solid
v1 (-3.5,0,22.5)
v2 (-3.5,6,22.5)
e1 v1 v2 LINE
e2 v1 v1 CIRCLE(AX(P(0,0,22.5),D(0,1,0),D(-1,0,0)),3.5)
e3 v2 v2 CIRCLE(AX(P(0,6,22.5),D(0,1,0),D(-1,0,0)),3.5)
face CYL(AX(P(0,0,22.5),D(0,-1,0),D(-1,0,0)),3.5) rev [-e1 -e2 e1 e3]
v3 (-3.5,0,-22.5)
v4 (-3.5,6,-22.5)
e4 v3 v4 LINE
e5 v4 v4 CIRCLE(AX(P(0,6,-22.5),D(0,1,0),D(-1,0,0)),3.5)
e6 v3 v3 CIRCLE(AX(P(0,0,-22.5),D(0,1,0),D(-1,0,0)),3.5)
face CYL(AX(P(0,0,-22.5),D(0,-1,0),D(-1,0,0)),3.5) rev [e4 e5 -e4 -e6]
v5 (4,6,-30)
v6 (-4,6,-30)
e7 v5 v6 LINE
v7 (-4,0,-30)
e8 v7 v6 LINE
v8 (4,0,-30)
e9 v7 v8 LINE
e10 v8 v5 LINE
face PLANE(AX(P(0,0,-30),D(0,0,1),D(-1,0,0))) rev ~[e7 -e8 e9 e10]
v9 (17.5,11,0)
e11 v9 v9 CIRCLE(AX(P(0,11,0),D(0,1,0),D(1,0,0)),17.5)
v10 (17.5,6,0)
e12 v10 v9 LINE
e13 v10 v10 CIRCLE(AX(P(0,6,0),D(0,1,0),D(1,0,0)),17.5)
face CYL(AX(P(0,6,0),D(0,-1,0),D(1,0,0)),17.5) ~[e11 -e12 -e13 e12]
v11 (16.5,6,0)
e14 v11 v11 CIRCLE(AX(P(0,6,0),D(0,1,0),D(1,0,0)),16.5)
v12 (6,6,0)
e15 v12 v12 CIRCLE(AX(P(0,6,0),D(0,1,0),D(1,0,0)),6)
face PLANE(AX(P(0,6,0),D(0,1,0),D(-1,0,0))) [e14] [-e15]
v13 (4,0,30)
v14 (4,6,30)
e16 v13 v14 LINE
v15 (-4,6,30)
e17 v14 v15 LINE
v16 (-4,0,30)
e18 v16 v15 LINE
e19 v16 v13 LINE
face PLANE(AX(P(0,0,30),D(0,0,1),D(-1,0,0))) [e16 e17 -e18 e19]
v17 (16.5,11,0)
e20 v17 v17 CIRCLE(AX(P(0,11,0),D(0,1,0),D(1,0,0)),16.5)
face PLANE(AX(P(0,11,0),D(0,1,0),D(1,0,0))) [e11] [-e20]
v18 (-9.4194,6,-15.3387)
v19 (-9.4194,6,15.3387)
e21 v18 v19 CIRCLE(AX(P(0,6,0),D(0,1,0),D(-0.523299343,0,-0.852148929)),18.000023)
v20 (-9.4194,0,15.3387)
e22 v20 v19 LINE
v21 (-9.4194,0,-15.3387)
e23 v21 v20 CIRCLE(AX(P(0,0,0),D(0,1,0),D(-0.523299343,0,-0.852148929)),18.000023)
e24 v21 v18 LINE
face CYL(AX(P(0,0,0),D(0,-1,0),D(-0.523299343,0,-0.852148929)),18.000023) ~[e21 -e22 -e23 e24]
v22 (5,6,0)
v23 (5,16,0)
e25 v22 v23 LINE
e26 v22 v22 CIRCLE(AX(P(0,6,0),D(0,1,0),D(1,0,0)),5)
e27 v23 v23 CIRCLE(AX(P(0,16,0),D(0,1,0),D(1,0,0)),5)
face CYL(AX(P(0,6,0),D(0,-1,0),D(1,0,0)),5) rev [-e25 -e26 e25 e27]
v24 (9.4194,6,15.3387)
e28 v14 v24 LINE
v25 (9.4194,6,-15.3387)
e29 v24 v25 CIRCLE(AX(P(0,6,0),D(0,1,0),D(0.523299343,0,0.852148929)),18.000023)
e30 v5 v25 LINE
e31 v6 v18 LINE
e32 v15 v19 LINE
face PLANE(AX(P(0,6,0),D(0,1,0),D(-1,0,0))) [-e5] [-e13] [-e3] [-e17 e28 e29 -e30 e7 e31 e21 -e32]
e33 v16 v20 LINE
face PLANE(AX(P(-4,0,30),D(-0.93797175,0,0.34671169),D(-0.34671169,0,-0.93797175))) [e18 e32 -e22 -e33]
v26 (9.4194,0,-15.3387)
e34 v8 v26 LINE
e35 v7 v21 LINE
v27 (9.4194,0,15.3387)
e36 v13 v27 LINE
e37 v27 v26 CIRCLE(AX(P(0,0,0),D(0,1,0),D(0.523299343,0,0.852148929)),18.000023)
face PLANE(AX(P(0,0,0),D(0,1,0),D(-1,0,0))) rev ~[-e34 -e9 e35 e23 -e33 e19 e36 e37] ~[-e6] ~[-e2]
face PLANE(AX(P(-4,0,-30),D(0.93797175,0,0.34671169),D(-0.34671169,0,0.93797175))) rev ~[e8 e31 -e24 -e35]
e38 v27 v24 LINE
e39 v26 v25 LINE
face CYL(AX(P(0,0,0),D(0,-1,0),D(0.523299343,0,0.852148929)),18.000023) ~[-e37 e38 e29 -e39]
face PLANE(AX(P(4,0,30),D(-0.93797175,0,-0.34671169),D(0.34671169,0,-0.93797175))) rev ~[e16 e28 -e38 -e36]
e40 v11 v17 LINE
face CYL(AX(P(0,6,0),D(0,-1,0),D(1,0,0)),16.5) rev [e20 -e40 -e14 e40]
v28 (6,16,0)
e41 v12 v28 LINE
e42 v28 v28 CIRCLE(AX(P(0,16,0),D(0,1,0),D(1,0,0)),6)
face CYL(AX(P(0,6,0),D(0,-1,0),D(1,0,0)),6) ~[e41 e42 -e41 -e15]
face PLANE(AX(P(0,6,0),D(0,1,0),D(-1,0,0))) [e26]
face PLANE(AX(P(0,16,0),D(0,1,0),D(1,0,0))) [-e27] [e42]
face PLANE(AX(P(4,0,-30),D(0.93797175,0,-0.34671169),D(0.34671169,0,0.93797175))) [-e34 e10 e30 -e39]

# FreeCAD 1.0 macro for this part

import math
import FreeCAD as App
import Part
import Sketcher

V = App.Vector

doc = App.newDocument("Part")
body = doc.addObject("PartDesign::Body", "Body")

sketch1 = body.newObject("Sketcher::SketchObject", "Sketch")
sketch1.AttachmentSupport = (doc.getObject("XZ_Plane"), [""])
sketch1.MapMode = "FlatFace"
sketch1.addGeometry(Part.LineSegment(V(-4, 30, 0), V(4, 30, 0)), False)
sketch1.addGeometry(Part.LineSegment(V(4, 30, 0), V(9.4, 15.3, 0)), False)
sketch1.addGeometry(Part.ArcOfCircle(Part.Circle(V(0, 0, 0), V(0, 0, 1), 18), math.radians(-58), math.radians(58)), False)
sketch1.addGeometry(Part.LineSegment(V(9.4, -15.3, 0), V(4, -30, 0)), False)
sketch1.addGeometry(Part.LineSegment(V(4, -30, 0), V(-4, -30, 0)), False)
sketch1.addGeometry(Part.LineSegment(V(-4, -30, 0), V(-9.4, -15.3, 0)), False)
sketch1.addGeometry(Part.ArcOfCircle(Part.Circle(V(0, 0, 0), V(0, 0, 1), 18), math.radians(122), math.radians(238)), False)
sketch1.addGeometry(Part.LineSegment(V(-9.4, 15.3, 0), V(-4, 30, 0)), False)
sketch1.addGeometry(Part.Circle(V(0, -22.5, 0), V(0, 0, 1), 3.5), False)
sketch1.addGeometry(Part.Circle(V(0, 22.5, 0), V(0, 0, 1), 3.5), False)
sketch1.addConstraint(Sketcher.Constraint("Coincident", 0, 2, 1, 1))
sketch1.addConstraint(Sketcher.Constraint("Coincident", 1, 2, 2, 2))
sketch1.addConstraint(Sketcher.Constraint("Coincident", 2, 1, 3, 1))
sketch1.addConstraint(Sketcher.Constraint("Coincident", 3, 2, 4, 1))
sketch1.addConstraint(Sketcher.Constraint("Coincident", 4, 2, 5, 1))
sketch1.addConstraint(Sketcher.Constraint("Coincident", 5, 2, 6, 2))
sketch1.addConstraint(Sketcher.Constraint("Coincident", 6, 1, 7, 1))
sketch1.addConstraint(Sketcher.Constraint("Coincident", 7, 2, 0, 1))
sketch1.addConstraint(Sketcher.Constraint("Horizontal", 0))
sketch1.addConstraint(Sketcher.Constraint("Horizontal", 4))
sketch1.addConstraint(Sketcher.Constraint("Coincident", 2, 3, -1, 1))
sketch1.addConstraint(Sketcher.Constraint("Coincident", 6, 3, -1, 1))
sketch1.addConstraint(Sketcher.Constraint("Equal", 2, 6))
sketch1.addConstraint(Sketcher.Constraint("Equal", 8, 9))
sketch1.addConstraint(Sketcher.Constraint("Symmetric", 8, 3, 9, 3, -1, 1))
sketch1.addConstraint(Sketcher.Constraint("Symmetric", 0, 2, 4, 2, -1, 1))
sketch1.addConstraint(Sketcher.Constraint("PointOnObject", 8, 3, -2))
sketch1.addConstraint(Sketcher.Constraint("Parallel", 1, 5))
sketch1.addConstraint(Sketcher.Constraint("Parallel", 3, 7))
sketch1.addConstraint(Sketcher.Constraint("Horizontal", 2, 1, 5, 2))
sketch1.addConstraint(Sketcher.Constraint("Horizontal", 1, 2, 6, 1))
sketch1.addConstraint(Sketcher.Constraint("Vertical", 0, 2, 3, 2))
sketch1.addConstraint(Sketcher.Constraint("Diameter", 8, 7.0))
sketch1.addConstraint(Sketcher.Constraint("Radius", 2, 18.0))
sketch1.addConstraint(Sketcher.Constraint("DistanceX", 0, 1, 0, 2, 8.0))
sketch1.addConstraint(Sketcher.Constraint("DistanceY", -1, 1, 0, 2, 30.0))
sketch1.addConstraint(Sketcher.Constraint("DistanceY", 8, 3, 9, 3, 45.0))
sketch1.addConstraint(Sketcher.Constraint("Distance", 1, 15.6309))
pad1 = body.newObject("PartDesign::Pad", "Pad")
pad1.Profile = sketch1
pad1.Length = 6
pad1.Reversed = True

sketch2 = body.newObject("Sketcher::SketchObject", "Sketch001")
sketch2.AttachmentSupport = (doc.getObject("XZ_Plane"), [""])
sketch2.MapMode = "FlatFace"
sketch2.AttachmentOffset = App.Placement(V(0, 0, -6), App.Rotation())
sketch2.addGeometry(Part.Circle(V(0, 0, 0), V(0, 0, 1), 18), False)
sketch2.addGeometry(Part.Circle(V(0, 0, 0), V(0, 0, 1), 16), False)
sketch2.addConstraint(Sketcher.Constraint("Coincident", 0, 3, -1, 1))
sketch2.addConstraint(Sketcher.Constraint("Coincident", 1, 3, -1, 1))
sketch2.addConstraint(Sketcher.Constraint("Diameter", 0, 35.0))
sketch2.addConstraint(Sketcher.Constraint("Diameter", 1, 33.0))
pad2 = body.newObject("PartDesign::Pad", "Pad001")
pad2.Profile = sketch2
pad2.Length = 5
pad2.Reversed = True

sketch3 = body.newObject("Sketcher::SketchObject", "Sketch002")
sketch3.AttachmentSupport = (doc.getObject("XZ_Plane"), [""])
sketch3.MapMode = "FlatFace"
sketch3.AttachmentOffset = App.Placement(V(0, 0, -6), App.Rotation())
sketch3.addGeometry(Part.Circle(V(0, 0, 0), V(0, 0, 1), 6), False)
sketch3.addGeometry(Part.Circle(V(0, 0, 0), V(0, 0, 1), 5), False)
sketch3.addConstraint(Sketcher.Constraint("Coincident", 0, 3, -1, 1))
sketch3.addConstraint(Sketcher.Constraint("Coincident", 1, 3, -1, 1))
sketch3.addConstraint(Sketcher.Constraint("Diameter", 0, 12.0))
sketch3.addConstraint(Sketcher.Constraint("Diameter", 1, 10.0))
pad3 = body.newObject("PartDesign::Pad", "Pad002")
pad3.Profile = sketch3
pad3.Length = 10
pad3.Reversed = True

doc.recompute()
